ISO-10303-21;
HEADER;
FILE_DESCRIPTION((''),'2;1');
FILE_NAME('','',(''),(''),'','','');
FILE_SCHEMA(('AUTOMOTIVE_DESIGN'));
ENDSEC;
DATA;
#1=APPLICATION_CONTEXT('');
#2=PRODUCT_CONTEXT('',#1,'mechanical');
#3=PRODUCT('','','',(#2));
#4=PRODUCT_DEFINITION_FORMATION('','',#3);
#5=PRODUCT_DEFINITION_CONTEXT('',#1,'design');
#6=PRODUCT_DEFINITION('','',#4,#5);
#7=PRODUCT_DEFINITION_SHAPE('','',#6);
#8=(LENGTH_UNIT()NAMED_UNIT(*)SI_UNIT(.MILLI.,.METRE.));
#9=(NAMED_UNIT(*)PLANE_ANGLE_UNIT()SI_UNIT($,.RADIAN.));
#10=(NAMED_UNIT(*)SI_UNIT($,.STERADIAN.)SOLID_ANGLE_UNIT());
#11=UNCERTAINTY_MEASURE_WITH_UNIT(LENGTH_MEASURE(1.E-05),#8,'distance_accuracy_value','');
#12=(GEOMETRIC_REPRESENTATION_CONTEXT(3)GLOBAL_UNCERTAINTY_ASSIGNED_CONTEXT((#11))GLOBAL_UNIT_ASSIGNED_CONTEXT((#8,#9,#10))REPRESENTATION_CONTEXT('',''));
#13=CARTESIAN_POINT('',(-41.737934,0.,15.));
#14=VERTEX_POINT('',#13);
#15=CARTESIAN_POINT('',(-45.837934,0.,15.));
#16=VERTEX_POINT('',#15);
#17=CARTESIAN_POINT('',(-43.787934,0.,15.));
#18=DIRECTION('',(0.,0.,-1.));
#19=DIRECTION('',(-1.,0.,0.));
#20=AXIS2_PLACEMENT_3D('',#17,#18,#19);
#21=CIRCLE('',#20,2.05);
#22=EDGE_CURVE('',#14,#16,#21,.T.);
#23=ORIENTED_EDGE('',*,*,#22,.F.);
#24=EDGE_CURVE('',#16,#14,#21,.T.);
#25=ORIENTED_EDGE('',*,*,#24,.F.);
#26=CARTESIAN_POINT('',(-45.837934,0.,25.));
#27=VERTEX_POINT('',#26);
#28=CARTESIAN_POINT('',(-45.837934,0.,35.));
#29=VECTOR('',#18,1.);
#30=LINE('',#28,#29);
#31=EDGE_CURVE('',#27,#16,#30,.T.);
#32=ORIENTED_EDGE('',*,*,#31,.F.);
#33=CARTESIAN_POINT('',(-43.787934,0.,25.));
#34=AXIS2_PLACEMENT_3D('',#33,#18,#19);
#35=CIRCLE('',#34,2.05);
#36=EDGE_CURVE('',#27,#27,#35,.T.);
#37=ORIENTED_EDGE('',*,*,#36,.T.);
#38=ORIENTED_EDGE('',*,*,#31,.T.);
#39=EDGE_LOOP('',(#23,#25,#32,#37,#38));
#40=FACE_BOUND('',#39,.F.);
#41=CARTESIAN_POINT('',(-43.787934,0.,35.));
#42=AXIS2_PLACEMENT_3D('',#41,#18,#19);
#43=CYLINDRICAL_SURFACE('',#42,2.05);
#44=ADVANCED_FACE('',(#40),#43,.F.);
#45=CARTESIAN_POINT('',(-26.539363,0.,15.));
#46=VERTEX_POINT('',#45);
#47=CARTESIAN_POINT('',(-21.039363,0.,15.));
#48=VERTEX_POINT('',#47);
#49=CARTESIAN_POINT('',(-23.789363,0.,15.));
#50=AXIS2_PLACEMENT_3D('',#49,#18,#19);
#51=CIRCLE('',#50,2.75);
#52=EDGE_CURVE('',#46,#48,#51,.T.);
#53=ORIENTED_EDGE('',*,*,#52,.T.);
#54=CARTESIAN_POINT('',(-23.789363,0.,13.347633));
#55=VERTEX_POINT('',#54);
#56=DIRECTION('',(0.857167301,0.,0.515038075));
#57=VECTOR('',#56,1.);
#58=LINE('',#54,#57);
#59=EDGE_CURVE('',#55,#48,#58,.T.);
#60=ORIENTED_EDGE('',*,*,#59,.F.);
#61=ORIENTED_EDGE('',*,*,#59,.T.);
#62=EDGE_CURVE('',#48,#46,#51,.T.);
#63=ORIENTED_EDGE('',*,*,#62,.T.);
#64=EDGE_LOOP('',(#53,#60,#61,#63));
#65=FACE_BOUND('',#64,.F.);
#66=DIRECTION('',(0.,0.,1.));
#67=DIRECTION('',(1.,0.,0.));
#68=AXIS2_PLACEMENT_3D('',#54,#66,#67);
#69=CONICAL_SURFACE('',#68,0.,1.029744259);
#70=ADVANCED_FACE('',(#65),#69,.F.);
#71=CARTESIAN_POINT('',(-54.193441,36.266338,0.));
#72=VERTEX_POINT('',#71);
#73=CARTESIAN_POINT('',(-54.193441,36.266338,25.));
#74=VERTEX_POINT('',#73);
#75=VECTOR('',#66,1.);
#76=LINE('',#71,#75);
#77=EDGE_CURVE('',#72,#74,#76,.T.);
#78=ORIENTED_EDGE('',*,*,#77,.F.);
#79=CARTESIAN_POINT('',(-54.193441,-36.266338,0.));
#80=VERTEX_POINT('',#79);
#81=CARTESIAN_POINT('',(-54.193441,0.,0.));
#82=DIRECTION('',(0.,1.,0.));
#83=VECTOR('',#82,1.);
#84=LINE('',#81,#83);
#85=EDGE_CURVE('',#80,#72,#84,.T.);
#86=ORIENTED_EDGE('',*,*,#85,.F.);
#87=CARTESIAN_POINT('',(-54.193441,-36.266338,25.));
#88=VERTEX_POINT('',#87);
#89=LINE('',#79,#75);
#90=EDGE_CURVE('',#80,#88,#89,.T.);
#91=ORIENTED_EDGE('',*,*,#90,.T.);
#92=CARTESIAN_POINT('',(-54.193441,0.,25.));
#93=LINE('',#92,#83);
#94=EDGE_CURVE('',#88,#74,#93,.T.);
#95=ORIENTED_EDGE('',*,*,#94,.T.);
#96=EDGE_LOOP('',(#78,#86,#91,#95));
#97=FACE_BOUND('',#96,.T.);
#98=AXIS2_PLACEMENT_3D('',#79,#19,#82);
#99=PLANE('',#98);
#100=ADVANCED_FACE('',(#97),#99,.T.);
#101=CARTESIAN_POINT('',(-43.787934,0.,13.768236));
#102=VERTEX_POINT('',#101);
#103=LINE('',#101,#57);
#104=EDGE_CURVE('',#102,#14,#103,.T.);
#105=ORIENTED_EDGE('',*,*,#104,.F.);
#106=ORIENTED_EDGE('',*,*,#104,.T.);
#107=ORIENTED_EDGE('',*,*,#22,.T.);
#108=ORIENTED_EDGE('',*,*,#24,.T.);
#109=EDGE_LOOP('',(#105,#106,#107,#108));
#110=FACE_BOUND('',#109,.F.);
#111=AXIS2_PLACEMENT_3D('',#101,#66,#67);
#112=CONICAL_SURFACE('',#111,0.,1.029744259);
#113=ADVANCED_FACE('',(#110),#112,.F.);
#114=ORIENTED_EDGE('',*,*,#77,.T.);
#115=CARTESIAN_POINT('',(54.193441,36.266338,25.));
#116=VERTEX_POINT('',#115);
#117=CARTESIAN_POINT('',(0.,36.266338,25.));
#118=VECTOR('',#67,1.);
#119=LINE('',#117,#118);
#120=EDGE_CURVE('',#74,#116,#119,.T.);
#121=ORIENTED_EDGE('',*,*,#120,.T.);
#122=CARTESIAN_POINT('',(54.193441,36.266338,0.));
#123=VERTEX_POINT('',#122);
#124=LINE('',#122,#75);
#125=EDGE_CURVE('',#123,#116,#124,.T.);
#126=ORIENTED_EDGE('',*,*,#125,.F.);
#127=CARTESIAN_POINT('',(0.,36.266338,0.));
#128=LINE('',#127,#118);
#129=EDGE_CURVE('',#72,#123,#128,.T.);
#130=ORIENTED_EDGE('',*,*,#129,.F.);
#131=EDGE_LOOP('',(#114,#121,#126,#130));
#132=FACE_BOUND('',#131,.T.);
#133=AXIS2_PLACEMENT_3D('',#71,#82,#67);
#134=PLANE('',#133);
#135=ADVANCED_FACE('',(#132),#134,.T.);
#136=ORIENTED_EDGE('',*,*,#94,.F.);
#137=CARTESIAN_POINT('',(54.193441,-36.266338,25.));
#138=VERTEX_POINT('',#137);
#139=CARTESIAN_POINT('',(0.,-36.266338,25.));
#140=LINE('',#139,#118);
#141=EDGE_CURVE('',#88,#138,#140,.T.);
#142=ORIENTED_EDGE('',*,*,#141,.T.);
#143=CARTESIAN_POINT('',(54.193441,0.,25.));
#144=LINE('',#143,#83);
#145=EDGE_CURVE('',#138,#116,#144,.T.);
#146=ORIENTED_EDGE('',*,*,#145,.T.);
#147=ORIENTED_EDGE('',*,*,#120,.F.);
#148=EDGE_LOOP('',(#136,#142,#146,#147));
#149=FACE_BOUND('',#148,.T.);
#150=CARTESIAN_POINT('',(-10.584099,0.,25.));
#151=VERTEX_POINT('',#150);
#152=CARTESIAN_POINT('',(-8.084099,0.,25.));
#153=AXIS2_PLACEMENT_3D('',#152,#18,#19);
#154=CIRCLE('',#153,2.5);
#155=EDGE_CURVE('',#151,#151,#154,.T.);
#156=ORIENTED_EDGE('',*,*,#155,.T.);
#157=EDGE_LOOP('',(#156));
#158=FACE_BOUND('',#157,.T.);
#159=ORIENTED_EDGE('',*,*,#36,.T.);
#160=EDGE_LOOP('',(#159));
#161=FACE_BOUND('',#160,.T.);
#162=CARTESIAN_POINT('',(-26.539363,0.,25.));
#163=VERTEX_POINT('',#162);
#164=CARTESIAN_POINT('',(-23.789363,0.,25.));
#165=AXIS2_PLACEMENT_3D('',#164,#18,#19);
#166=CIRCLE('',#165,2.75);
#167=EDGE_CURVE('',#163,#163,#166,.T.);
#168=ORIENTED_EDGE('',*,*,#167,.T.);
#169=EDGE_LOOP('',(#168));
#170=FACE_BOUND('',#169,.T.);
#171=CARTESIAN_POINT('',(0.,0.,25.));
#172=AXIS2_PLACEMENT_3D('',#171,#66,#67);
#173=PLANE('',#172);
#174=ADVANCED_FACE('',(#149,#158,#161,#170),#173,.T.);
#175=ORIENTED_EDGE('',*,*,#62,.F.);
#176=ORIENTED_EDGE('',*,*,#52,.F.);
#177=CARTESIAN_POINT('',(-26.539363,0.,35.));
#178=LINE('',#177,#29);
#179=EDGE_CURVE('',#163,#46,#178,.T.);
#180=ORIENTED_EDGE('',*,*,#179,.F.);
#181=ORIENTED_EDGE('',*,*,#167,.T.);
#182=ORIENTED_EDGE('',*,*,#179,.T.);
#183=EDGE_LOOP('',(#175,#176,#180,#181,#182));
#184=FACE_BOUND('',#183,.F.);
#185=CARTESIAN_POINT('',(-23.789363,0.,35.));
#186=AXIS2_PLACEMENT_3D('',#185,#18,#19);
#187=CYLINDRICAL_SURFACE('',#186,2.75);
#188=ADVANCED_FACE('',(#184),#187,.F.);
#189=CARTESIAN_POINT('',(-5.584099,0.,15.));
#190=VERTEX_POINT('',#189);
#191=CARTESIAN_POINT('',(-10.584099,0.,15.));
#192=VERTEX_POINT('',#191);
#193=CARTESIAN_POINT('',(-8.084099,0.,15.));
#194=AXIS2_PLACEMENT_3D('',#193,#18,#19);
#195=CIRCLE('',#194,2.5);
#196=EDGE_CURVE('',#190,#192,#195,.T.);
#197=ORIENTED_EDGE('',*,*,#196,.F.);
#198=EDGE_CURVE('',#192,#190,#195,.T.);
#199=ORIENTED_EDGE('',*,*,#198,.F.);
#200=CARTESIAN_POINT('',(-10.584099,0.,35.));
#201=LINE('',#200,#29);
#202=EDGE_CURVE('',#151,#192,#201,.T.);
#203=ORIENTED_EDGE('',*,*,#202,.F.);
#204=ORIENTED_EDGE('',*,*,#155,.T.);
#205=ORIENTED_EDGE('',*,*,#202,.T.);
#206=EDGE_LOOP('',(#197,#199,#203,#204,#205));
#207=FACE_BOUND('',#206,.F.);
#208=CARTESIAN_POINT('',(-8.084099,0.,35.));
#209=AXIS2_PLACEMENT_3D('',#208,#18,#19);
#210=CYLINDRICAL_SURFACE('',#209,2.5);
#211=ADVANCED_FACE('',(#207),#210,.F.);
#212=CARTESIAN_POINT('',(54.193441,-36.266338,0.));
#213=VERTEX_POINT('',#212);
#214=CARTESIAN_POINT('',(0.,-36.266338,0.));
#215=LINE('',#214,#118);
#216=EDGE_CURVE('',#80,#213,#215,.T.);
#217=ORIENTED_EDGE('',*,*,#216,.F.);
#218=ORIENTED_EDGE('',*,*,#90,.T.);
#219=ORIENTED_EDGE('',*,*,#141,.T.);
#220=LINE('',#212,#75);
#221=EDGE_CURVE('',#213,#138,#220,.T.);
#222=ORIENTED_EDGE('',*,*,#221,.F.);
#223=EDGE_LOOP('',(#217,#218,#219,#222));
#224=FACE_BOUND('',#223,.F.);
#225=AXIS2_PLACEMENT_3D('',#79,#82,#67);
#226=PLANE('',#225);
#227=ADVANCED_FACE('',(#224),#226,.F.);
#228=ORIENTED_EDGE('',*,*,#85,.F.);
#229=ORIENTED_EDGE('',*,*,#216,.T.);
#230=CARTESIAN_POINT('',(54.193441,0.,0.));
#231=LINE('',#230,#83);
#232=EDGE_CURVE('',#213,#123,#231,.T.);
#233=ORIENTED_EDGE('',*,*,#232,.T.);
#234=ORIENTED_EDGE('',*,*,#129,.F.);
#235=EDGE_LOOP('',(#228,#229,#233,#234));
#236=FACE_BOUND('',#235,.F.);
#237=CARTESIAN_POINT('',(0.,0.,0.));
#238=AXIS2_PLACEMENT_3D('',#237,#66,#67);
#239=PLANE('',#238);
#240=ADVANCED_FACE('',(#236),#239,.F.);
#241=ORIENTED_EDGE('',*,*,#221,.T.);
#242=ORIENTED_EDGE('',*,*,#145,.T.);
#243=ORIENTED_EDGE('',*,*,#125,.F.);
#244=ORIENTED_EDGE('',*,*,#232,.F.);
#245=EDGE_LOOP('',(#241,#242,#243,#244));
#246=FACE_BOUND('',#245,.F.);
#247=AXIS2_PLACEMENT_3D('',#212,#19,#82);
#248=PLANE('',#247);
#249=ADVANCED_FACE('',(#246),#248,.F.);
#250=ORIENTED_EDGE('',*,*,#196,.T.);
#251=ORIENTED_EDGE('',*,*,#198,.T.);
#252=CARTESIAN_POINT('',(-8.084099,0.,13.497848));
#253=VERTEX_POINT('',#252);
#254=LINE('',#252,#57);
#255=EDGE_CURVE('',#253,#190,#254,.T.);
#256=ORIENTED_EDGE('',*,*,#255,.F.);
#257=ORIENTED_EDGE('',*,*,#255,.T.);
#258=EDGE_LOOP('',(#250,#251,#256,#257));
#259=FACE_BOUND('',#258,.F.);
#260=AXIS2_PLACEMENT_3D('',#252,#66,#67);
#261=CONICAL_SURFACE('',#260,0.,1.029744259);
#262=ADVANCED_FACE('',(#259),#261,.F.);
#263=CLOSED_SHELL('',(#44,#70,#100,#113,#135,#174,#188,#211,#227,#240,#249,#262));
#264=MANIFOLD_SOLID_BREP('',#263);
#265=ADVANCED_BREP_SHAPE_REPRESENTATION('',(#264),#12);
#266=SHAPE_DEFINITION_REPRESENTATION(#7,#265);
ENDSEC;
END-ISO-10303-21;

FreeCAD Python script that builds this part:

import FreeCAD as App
import Part
import Sketcher

V = App.Vector

doc = App.newDocument("Part")
body = doc.addObject("PartDesign::Body", "Body")

# Sketch on XY plane
sketch1 = body.newObject("Sketcher::SketchObject", "Sketch")
sketch1.AttachmentSupport = (doc.getObject("XY_Plane"), [""])
sketch1.MapMode = "FlatFace"
sketch1.addGeometry([
    Part.LineSegment(V(-54.193441, 36.266338, 0), V(-54.193441, -36.266338, 0)),
    Part.LineSegment(V(-54.193441, -36.266338, 0), V(54.193441, -36.266338, 0)),
    Part.LineSegment(V(54.193441, -36.266338, 0), V(54.193441, 36.266338, 0)),
    Part.LineSegment(V(54.193441, 36.266338, 0), V(-54.193441, 36.266338, 0)),
], False)
sketch1.addConstraint([
    Sketcher.Constraint("Coincident", 0, 2, 1, 1),
    Sketcher.Constraint("Coincident", 1, 2, 2, 1),
    Sketcher.Constraint("Coincident", 2, 2, 3, 1),
    Sketcher.Constraint("Coincident", 3, 2, 0, 1),
    Sketcher.Constraint("Vertical", 0),
    Sketcher.Constraint("Horizontal", 1),
    Sketcher.Constraint("Vertical", 2),
    Sketcher.Constraint("Horizontal", 3),
    Sketcher.Constraint("Symmetric", 0, 2, 2, 2, -1, 1),
    Sketcher.Constraint("DistanceX", 1, 1, 1, 2, 108.386882),
    Sketcher.Constraint("DistanceY", 0, 2, 0, 1, 72.532676),
])
pad1 = body.newObject("PartDesign::Pad", "Pad")
pad1.Profile = sketch1
pad1.Length = 25

# Sketch on XY plane
sketch2 = body.newObject("Sketcher::SketchObject", "Sketch001")
sketch2.AttachmentSupport = (doc.getObject("XY_Plane"), [""])
sketch2.MapMode = "FlatFace"
sketch2.AttachmentOffset = App.Placement(V(0, 0, 25), App.Rotation())
sketch2.addGeometry(Part.Circle(V(-43.787934, 0, 0), V(0, 0, 1), 2.05), False)
sketch2.addConstraint([
    Sketcher.Constraint("PointOnObject", 0, 3, -1),
    Sketcher.Constraint("Diameter", 0, 4.1),
    Sketcher.Constraint("DistanceX", 0, 3, -1, 1, 43.787934),
])
doc.recompute()
hole = body.newObject("PartDesign::Hole", "Hole")
hole.Profile = sketch2
hole.ThreadType = "None"
hole.Diameter = 4.1
hole.DepthType = "Dimension"
hole.Depth = 10
hole.DrillPoint = "Angled"
hole.DrillPointAngle = 118

# Sketch on XY plane
sketch3 = body.newObject("Sketcher::SketchObject", "Sketch002")
sketch3.AttachmentSupport = (doc.getObject("XY_Plane"), [""])
sketch3.MapMode = "FlatFace"
sketch3.AttachmentOffset = App.Placement(V(0, 0, 25), App.Rotation())
sketch3.addGeometry(Part.Circle(V(-23.789363, 0, 0), V(0, 0, 1), 2.75), False)
sketch3.addConstraint([
    Sketcher.Constraint("PointOnObject", 0, 3, -1),
    Sketcher.Constraint("Diameter", 0, 5.5),
    Sketcher.Constraint("DistanceX", 0, 3, -1, 1, 23.789363),
])
doc.recompute()
hole2 = body.newObject("PartDesign::Hole", "Hole001")
hole2.Profile = sketch3
hole2.ThreadType = "None"
hole2.Diameter = 5.5
hole2.DepthType = "Dimension"
hole2.Depth = 10
hole2.DrillPoint = "Angled"
hole2.DrillPointAngle = 118

# Sketch on XY plane
sketch4 = body.newObject("Sketcher::SketchObject", "Sketch003")
sketch4.AttachmentSupport = (doc.getObject("XY_Plane"), [""])
sketch4.MapMode = "FlatFace"
sketch4.AttachmentOffset = App.Placement(V(0, 0, 25), App.Rotation())
sketch4.addGeometry(Part.Circle(V(-8.084099, 0, 0), V(0, 0, 1), 2.5), False)
sketch4.addConstraint([
    Sketcher.Constraint("PointOnObject", 0, 3, -1),
    Sketcher.Constraint("Diameter", 0, 5.0),
    Sketcher.Constraint("DistanceX", 0, 3, -1, 1, 8.084099),
])
doc.recompute()
hole3 = body.newObject("PartDesign::Hole", "Hole002")
hole3.Profile = sketch4
hole3.ThreadType = "None"
hole3.Diameter = 5
hole3.DepthType = "Dimension"
hole3.Depth = 10
hole3.DrillPoint = "Angled"
hole3.DrillPointAngle = 118

doc.recompute()
